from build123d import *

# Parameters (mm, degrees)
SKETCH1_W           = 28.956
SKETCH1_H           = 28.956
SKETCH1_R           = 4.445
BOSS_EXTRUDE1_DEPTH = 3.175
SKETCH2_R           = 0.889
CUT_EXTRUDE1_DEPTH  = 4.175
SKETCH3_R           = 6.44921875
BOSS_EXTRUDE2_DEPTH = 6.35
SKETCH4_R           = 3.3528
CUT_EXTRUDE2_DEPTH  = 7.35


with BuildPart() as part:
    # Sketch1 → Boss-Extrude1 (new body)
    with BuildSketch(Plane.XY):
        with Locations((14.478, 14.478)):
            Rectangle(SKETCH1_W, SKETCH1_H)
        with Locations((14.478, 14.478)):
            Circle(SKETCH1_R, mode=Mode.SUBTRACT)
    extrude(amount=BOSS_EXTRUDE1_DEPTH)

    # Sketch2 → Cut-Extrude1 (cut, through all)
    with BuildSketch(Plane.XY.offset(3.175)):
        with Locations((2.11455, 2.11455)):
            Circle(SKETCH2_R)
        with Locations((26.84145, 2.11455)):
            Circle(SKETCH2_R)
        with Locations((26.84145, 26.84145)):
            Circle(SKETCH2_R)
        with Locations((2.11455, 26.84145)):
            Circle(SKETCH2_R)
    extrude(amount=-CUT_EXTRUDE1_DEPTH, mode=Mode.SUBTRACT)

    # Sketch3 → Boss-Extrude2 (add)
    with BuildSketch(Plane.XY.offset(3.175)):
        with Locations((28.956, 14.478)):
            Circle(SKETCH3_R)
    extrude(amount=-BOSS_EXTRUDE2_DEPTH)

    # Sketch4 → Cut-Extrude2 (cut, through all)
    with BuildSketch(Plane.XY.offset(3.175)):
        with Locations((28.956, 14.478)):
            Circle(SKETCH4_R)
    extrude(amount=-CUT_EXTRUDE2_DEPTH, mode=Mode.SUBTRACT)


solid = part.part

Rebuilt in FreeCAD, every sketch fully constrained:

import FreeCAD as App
import Part
import Sketcher
Q = App.Units.Quantity

doc = App.newDocument("Part")
params = doc.addObject("Spreadsheet::Sheet", "Params")
for row, (alias, value) in enumerate([
    ("sketch1_diameter", "0.35 in"),
    ("sketch1_width", "1.14 in"),
    ("pad1_length", "0.125 in"),
    ("sketch2_diameter", "0.07 in"),
    ("pad2_length", "0.25 in"),
    ("sketch4_diameter", "0.264 in"),
], start=1):
    params.set(f"A{row}", alias)
    params.set(f"B{row}", "=" + value)
    params.setAlias(f"B{row}", alias)

body = doc.addObject("PartDesign::Body", "Body")

# Sketch on XY plane
sketch1 = body.newObject("Sketcher::SketchObject", "Sketch")
sketch1.AttachmentSupport = (doc.getObject("XY_Plane"), [""])
sketch1.MapMode = "FlatFace"
sketch1.addGeometry(Part.LineSegment(App.Vector(0, 29, 0), App.Vector(0, 0, 0)), False)
sketch1.addGeometry(Part.LineSegment(App.Vector(0, 0, 0), App.Vector(29, 0, 0)), False)
sketch1.addGeometry(Part.LineSegment(App.Vector(29, 0, 0), App.Vector(29, 29, 0)), False)
sketch1.addGeometry(Part.LineSegment(App.Vector(29, 29, 0), App.Vector(0, 29, 0)), False)
sketch1.addGeometry(Part.Circle(App.Vector(14.5, 14.5, 0), App.Vector(0, 0, 1), 4.4), False)
sketch1.addConstraint(Sketcher.Constraint("Coincident", 0, 2, 1, 1))
sketch1.addConstraint(Sketcher.Constraint("Coincident", 1, 2, 2, 1))
sketch1.addConstraint(Sketcher.Constraint("Coincident", 2, 2, 3, 1))
sketch1.addConstraint(Sketcher.Constraint("Coincident", 3, 2, 0, 1))
sketch1.addConstraint(Sketcher.Constraint("Vertical", 0))
sketch1.addConstraint(Sketcher.Constraint("Horizontal", 1))
sketch1.addConstraint(Sketcher.Constraint("Vertical", 2))
sketch1.addConstraint(Sketcher.Constraint("Horizontal", 3))
sketch1.addConstraint(Sketcher.Constraint("Coincident", 0, 2, -1, 1))
sketch1.addConstraint(Sketcher.Constraint("Equal", 3, 0))
sketch1.addConstraint(Sketcher.Constraint("Diameter", 4, Q("0.35 in")))
sketch1.addConstraint(Sketcher.Constraint("DistanceX", 1, 1, 1, 2, Q("1.14 in")))
sketch1.addConstraint(Sketcher.Constraint("DistanceX", -1, 1, 4, 3, Q("0.57 in")))
sketch1.addConstraint(Sketcher.Constraint("DistanceY", -1, 1, 4, 3, Q("0.57 in")))
sketch1.setExpression("Constraints[10]", "Params.sketch1_diameter")
sketch1.setExpression("Constraints[11]", "Params.sketch1_width")
pad1 = body.newObject("PartDesign::Pad", "Pad")
pad1.Profile = sketch1
pad1.setExpression("Length", "Params.pad1_length")

# Sketch on XY plane
sketch2 = body.newObject("Sketcher::SketchObject", "Sketch001")
sketch2.AttachmentSupport = (doc.getObject("XY_Plane"), [""])
sketch2.MapMode = "FlatFace"
sketch2.AttachmentOffset = App.Placement(App.Vector(0, 0, 0.125 * 25.4), App.Rotation())
sketch2.addGeometry(Part.Circle(App.Vector(2.1, 2.1, 0), App.Vector(0, 0, 1), 0.9), False)
sketch2.addGeometry(Part.Circle(App.Vector(26.8, 2.1, 0), App.Vector(0, 0, 1), 0.9), False)
sketch2.addGeometry(Part.Circle(App.Vector(26.8, 26.8, 0), App.Vector(0, 0, 1), 0.9), False)
sketch2.addGeometry(Part.Circle(App.Vector(2.1, 26.8, 0), App.Vector(0, 0, 1), 0.9), False)
sketch2.addConstraint(Sketcher.Constraint("Equal", 0, 1))
sketch2.addConstraint(Sketcher.Constraint("Equal", 1, 2))
sketch2.addConstraint(Sketcher.Constraint("Equal", 2, 3))
sketch2.addConstraint(Sketcher.Constraint("Horizontal", 0, 3, 1, 3))
sketch2.addConstraint(Sketcher.Constraint("Horizontal", 2, 3, 3, 3))
sketch2.addConstraint(Sketcher.Constraint("Vertical", 1, 3, 2, 3))
sketch2.addConstraint(Sketcher.Constraint("Vertical", 0, 3, 3, 3))
sketch2.addConstraint(Sketcher.Constraint("Diameter", 0, Q("0.07 in")))
sketch2.addConstraint(Sketcher.Constraint("DistanceX", 0, 3, 1, 3, Q("0.9735 in")))
sketch2.addConstraint(Sketcher.Constraint("DistanceY", 1, 3, 2, 3, Q("0.9735 in")))
sketch2.addConstraint(Sketcher.Constraint("DistanceX", -1, 1, 0, 3, 2.11455))
sketch2.addConstraint(Sketcher.Constraint("DistanceY", -1, 1, 0, 3, 2.11455))
sketch2.setExpression("Constraints[7]", "Params.sketch2_diameter")
pocket1 = body.newObject("PartDesign::Pocket", "Pocket")
pocket1.Profile = sketch2
pocket1.Type = "ThroughAll"

# Sketch on XY plane
sketch3 = body.newObject("Sketcher::SketchObject", "Sketch002")
sketch3.AttachmentSupport = (doc.getObject("XY_Plane"), [""])
sketch3.MapMode = "FlatFace"
sketch3.AttachmentOffset = App.Placement(App.Vector(0, 0, 0.125 * 25.4), App.Rotation())
sketch3.addGeometry(Part.Circle(App.Vector(29, 14, 0), App.Vector(0, 0, 1), 6), False)
sketch3.addConstraint(Sketcher.Constraint("DistanceX", -1, 1, 0, 3, Q("1.14 in")))
sketch3.addConstraint(Sketcher.Constraint("DistanceY", -1, 1, 0, 3, Q("0.57 in")))
sketch3.addConstraint(Sketcher.Constraint("Diameter", 0, 12.898438))
pad2 = body.newObject("PartDesign::Pad", "Pad001")
pad2.Profile = sketch3
pad2.setExpression("Length", "Params.pad2_length")
pad2.Reversed = True

# Sketch on XY plane
sketch4 = body.newObject("Sketcher::SketchObject", "Sketch003")
sketch4.AttachmentSupport = (doc.getObject("XY_Plane"), [""])
sketch4.MapMode = "FlatFace"
sketch4.AttachmentOffset = App.Placement(App.Vector(0, 0, 0.125 * 25.4), App.Rotation())
sketch4.addGeometry(Part.Circle(App.Vector(29, 14.5, 0), App.Vector(0, 0, 1), 3.4), False)
sketch4.addConstraint(Sketcher.Constraint("Diameter", 0, Q("0.264 in")))
sketch4.addConstraint(Sketcher.Constraint("DistanceX", -1, 1, 0, 3, Q("1.14 in")))
sketch4.addConstraint(Sketcher.Constraint("DistanceY", -1, 1, 0, 3, Q("0.57 in")))
sketch4.setExpression("Constraints[0]", "Params.sketch4_diameter")
pocket2 = body.newObject("PartDesign::Pocket", "Pocket001")
pocket2.Profile = sketch4
pocket2.Type = "ThroughAll"

doc.recompute()
